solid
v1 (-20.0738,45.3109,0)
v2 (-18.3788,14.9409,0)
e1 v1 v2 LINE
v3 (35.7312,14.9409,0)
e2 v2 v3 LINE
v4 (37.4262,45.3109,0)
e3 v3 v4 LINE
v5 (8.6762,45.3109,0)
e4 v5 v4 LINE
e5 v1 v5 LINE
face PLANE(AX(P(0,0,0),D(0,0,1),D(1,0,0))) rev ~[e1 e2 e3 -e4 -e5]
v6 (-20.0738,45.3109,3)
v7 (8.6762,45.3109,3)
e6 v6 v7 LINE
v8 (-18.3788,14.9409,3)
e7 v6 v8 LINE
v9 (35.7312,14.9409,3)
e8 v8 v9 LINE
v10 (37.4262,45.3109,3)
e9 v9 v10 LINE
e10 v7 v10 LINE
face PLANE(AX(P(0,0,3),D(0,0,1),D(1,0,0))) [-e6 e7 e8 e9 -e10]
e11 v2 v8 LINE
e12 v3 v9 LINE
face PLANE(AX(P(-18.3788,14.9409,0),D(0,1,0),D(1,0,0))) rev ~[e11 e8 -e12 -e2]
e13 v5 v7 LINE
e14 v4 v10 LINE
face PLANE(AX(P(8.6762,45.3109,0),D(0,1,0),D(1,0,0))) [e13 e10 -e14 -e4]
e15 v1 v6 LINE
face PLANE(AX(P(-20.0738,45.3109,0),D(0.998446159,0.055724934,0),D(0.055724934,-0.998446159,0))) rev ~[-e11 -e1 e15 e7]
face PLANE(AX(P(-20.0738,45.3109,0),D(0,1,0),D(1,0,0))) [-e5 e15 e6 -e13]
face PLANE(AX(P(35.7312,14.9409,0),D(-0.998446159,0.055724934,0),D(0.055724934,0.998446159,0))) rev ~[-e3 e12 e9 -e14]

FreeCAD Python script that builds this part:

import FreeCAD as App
import Part
import Sketcher
from FreeCAD import Vector
Q = App.Units.Quantity

doc = App.newDocument("Part")
params = doc.addObject("Spreadsheet::Sheet", "Params")
for row, (alias, value) in enumerate([
    ("sketch1_width", "57.5 mm"),
    ("sketch1_width2", "54.11 mm"),
    ("pad1_length", "3 mm"),
], start=1):
    params.set(f"A{row}", alias)
    params.set(f"B{row}", "=" + value)
    params.setAlias(f"B{row}", alias)

body = doc.addObject("PartDesign::Body", "Body")

# Sketch on XY plane
sketch1 = doc.addObject("Sketcher::SketchObject", "Sketch")
body.addObject(sketch1)
sketch1.AttachmentSupport = (doc.XY_Plane, [""])
sketch1.MapMode = "FlatFace"
sketch1.addGeometry([
    Part.LineSegment(Vector(-20, 45, 0), Vector(-18, 15, 0)),
    Part.LineSegment(Vector(-18, 15, 0), Vector(36, 15, 0)),
    Part.LineSegment(Vector(36, 15, 0), Vector(37, 45, 0)),
    Part.LineSegment(Vector(37, 45, 0), Vector(-20, 45, 0)),
], False)
sketch1.addConstraint([
    Sketcher.Constraint("Coincident", 0, 2, 1, 1),
    Sketcher.Constraint("Coincident", 1, 2, 2, 1),
    Sketcher.Constraint("Coincident", 2, 2, 3, 1),
    Sketcher.Constraint("Coincident", 3, 2, 0, 1),
    Sketcher.Constraint("Horizontal", 1),
    Sketcher.Constraint("Horizontal", 3),
    Sketcher.Constraint("Equal", 0, 2),
    Sketcher.Constraint("DistanceX", 3, 2, 3, 1, Q("57.5 mm")),
    Sketcher.Constraint("DistanceX", 1, 1, 1, 2, Q("54.11 mm")),
    Sketcher.Constraint("DistanceY", 1, 2, 2, 2, Q("30.37 mm")),
    Sketcher.Constraint("DistanceY", -1, 1, 0, 2, Q("14.941 mm")),
    Sketcher.Constraint("DistanceX", 0, 2, -1, 1, Q("18.3788 mm")),
])
sketch1.setExpression("Constraints[7]", "Params.sketch1_width")
sketch1.setExpression("Constraints[8]", "Params.sketch1_width2")
pad1 = doc.addObject("PartDesign::Pad", "Pad")
body.addObject(pad1)
pad1.Profile = sketch1
pad1.setExpression("Length", "Params.pad1_length")

doc.recompute()
